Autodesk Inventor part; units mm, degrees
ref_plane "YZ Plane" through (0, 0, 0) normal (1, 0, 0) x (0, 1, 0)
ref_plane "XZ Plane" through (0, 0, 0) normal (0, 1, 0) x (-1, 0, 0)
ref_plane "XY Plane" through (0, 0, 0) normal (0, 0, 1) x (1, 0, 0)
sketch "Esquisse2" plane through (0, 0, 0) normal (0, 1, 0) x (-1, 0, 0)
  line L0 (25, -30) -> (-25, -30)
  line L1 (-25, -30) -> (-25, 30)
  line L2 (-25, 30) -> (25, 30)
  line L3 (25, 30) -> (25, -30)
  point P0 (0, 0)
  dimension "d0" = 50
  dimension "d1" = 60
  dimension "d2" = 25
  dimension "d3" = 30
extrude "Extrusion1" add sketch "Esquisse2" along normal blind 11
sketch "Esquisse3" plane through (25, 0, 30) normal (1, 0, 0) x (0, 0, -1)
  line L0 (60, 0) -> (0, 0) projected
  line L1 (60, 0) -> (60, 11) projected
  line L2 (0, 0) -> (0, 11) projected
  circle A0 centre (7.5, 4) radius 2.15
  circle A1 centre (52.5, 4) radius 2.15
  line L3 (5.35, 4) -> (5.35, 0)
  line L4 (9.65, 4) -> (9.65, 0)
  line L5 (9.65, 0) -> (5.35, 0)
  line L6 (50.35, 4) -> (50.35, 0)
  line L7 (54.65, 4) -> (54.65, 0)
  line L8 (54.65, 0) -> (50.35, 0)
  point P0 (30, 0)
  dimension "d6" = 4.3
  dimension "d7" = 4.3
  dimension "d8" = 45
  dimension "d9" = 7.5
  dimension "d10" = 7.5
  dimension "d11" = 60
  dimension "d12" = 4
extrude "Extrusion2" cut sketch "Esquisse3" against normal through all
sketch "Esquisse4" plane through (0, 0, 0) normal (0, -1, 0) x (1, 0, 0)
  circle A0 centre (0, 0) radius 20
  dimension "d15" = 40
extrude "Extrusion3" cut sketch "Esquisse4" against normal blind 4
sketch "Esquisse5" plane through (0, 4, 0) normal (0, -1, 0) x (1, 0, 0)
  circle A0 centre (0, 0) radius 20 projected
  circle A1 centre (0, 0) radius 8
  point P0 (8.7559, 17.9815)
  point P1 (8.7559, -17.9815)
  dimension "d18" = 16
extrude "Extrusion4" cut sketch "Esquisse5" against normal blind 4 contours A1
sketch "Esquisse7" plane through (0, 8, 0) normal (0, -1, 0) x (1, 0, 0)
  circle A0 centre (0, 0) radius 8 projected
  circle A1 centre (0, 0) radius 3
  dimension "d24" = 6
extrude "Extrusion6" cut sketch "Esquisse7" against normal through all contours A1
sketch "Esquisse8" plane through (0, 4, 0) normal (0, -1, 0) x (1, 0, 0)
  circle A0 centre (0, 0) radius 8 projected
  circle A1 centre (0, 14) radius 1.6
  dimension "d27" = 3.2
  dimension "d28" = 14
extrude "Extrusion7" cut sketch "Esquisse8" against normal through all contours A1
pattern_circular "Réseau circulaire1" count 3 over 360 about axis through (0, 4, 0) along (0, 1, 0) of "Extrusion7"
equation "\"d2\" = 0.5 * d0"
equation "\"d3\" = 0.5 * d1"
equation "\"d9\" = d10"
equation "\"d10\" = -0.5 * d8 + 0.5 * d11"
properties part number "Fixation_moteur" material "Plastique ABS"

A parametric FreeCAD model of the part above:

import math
import FreeCAD as App
import Part
import Sketcher
Q = App.Units.Quantity

doc = App.newDocument("Part")
body = doc.addObject("PartDesign::Body", "Body")

# Sketch on XZ plane
sketch1 = body.newObject("Sketcher::SketchObject", "Sketch")
sketch1.AttachmentSupport = (doc.getObject("XZ_Plane"), [""])
sketch1.MapMode = "FlatFace"
sketch1.addGeometry([
    Part.LineSegment(App.Vector(25, -30, 0), App.Vector(-25, -30, 0)),
    Part.LineSegment(App.Vector(-25, -30, 0), App.Vector(-25, 30, 0)),
    Part.LineSegment(App.Vector(-25, 30, 0), App.Vector(25, 30, 0)),
    Part.LineSegment(App.Vector(25, 30, 0), App.Vector(25, -30, 0)),
], False)
sketch1.addConstraint([
    Sketcher.Constraint("Coincident", 0, 2, 1, 1),
    Sketcher.Constraint("Coincident", 1, 2, 2, 1),
    Sketcher.Constraint("Coincident", 2, 2, 3, 1),
    Sketcher.Constraint("Coincident", 3, 2, 0, 1),
    Sketcher.Constraint("Horizontal", 0),
    Sketcher.Constraint("Vertical", 1),
    Sketcher.Constraint("Horizontal", 2),
    Sketcher.Constraint("Vertical", 3),
    Sketcher.Constraint("Symmetric", 0, 2, 2, 2, -1, 1),
    Sketcher.Constraint("DistanceX", 0, 2, 0, 1, Q("50 mm")),
    Sketcher.Constraint("DistanceY", 1, 1, 1, 2, Q("60 mm")),
])
pad1 = body.newObject("PartDesign::Pad", "Pad")
pad1.Profile = sketch1
pad1.Length = 11
pad1.Reversed = True

# Sketch on YZ plane
sketch2 = body.newObject("Sketcher::SketchObject", "Sketch001")
sketch2.AttachmentSupport = (doc.getObject("YZ_Plane"), [""])
sketch2.MapMode = "FlatFace"
sketch2.AttachmentOffset = App.Placement(App.Vector(0, 0, 25), App.Rotation())
sketch2.addGeometry([
    Part.LineSegment(App.Vector(0, 24.6, 0), App.Vector(0, 20.4, 0)),  # 0
    Part.LineSegment(App.Vector(0, 20.4, 0), App.Vector(4, 20.4, 0)),  # 1
    Part.ArcOfCircle(Part.Circle(App.Vector(4, 22.5, 0), App.Vector(0, 0, 1), 2.1), math.radians(-90), math.radians(90)),  # 2
    Part.LineSegment(App.Vector(4, 24.6, 0), App.Vector(0, 24.6, 0)),  # 3
    Part.LineSegment(App.Vector(0, -20.4, 0), App.Vector(0, -24.6, 0)),  # 4
    Part.LineSegment(App.Vector(0, -24.6, 0), App.Vector(4, -24.6, 0)),  # 5
    Part.ArcOfCircle(Part.Circle(App.Vector(4, -22.5, 0), App.Vector(0, 0, 1), 2.1), math.radians(-90), math.radians(90)),  # 6
    Part.LineSegment(App.Vector(4, -20.4, 0), App.Vector(0, -20.4, 0)),  # 7
], False)
sketch2.addConstraint([
    Sketcher.Constraint("Coincident", 0, 2, 1, 1),
    Sketcher.Constraint("Tangent", 1, 2, 2, 1),
    Sketcher.Constraint("Tangent", 2, 2, 3, 1),
    Sketcher.Constraint("Coincident", 3, 2, 0, 1),
    Sketcher.Constraint("Coincident", 4, 2, 5, 1),
    Sketcher.Constraint("Tangent", 5, 2, 6, 1),
    Sketcher.Constraint("Tangent", 6, 2, 7, 1),
    Sketcher.Constraint("Coincident", 7, 2, 4, 1),
    Sketcher.Constraint("Vertical", 0),
    Sketcher.Constraint("Horizontal", 1),
    Sketcher.Constraint("Horizontal", 3),
    Sketcher.Constraint("Vertical", 4),
    Sketcher.Constraint("Horizontal", 5),
    Sketcher.Constraint("Horizontal", 7),
    Sketcher.Constraint("Equal", 2, 6),
    Sketcher.Constraint("Symmetric", 3, 2, 4, 2, -1, 1),
    Sketcher.Constraint("PointOnObject", 0, 2, -2),
    Sketcher.Constraint("Vertical", 2, 3, 6, 3),
    Sketcher.Constraint("DistanceX", 1, 1, 1, 2, Q("4 mm")),
    Sketcher.Constraint("Radius", 2, Q("2.15 mm")),
    Sketcher.Constraint("DistanceY", 6, 3, 2, 3, Q("45 mm")),
])
pocket1 = body.newObject("PartDesign::Pocket", "Pocket")
pocket1.Profile = sketch2
pocket1.Type = "ThroughAll"

# Sketch on XZ plane
sketch3 = body.newObject("Sketcher::SketchObject", "Sketch002")
sketch3.AttachmentSupport = (doc.getObject("XZ_Plane"), [""])
sketch3.MapMode = "FlatFace"
sketch3.addGeometry(Part.Circle(App.Vector(0, 0, 0), App.Vector(0, 0, 1), 20), False)
sketch3.addConstraint([
    Sketcher.Constraint("Coincident", 0, 3, -1, 1),
    Sketcher.Constraint("Diameter", 0, Q("40 mm")),
])
pocket2 = body.newObject("PartDesign::Pocket", "Pocket001")
pocket2.Profile = sketch3
pocket2.Length = 4

# Sketch on XZ plane
sketch4 = body.newObject("Sketcher::SketchObject", "Sketch003")
sketch4.AttachmentSupport = (doc.getObject("XZ_Plane"), [""])
sketch4.MapMode = "FlatFace"
sketch4.AttachmentOffset = App.Placement(App.Vector(0, 0, -4), App.Rotation())
sketch4.addGeometry(Part.Circle(App.Vector(0, 0, 0), App.Vector(0, 0, 1), 8), False)
sketch4.addConstraint([
    Sketcher.Constraint("Coincident", 0, 3, -1, 1),
    Sketcher.Constraint("Diameter", 0, Q("16 mm")),
])
pocket3 = body.newObject("PartDesign::Pocket", "Pocket002")
pocket3.Profile = sketch4
pocket3.Length = 4

# Sketch on XZ plane
sketch5 = body.newObject("Sketcher::SketchObject", "Sketch004")
sketch5.AttachmentSupport = (doc.getObject("XZ_Plane"), [""])
sketch5.MapMode = "FlatFace"
sketch5.AttachmentOffset = App.Placement(App.Vector(0, 0, -8), App.Rotation())
sketch5.addGeometry(Part.Circle(App.Vector(0, 0, 0), App.Vector(0, 0, 1), 3), False)
sketch5.addConstraint([
    Sketcher.Constraint("Coincident", 0, 3, -1, 1),
    Sketcher.Constraint("Diameter", 0, Q("6 mm")),
])
pocket4 = body.newObject("PartDesign::Pocket", "Pocket003")
pocket4.Profile = sketch5
pocket4.Type = "ThroughAll"

# Sketch on XZ plane
sketch6 = body.newObject("Sketcher::SketchObject", "Sketch005")
sketch6.AttachmentSupport = (doc.getObject("XZ_Plane"), [""])
sketch6.MapMode = "FlatFace"
sketch6.AttachmentOffset = App.Placement(App.Vector(0, 0, -4), App.Rotation())
sketch6.addGeometry(Part.Circle(App.Vector(0, 14, 0), App.Vector(0, 0, 1), 1.6), False)
sketch6.addConstraint([
    Sketcher.Constraint("PointOnObject", 0, 3, -2),
    Sketcher.Constraint("Diameter", 0, Q("3.2 mm")),
    Sketcher.Constraint("DistanceY", -1, 1, 0, 3, Q("14 mm")),
])
pocket5 = body.newObject("PartDesign::Pocket", "Pocket004")
pocket5.Profile = sketch6
pocket5.Type = "ThroughAll"
doc.recompute()

polarpattern = body.newObject("PartDesign::PolarPattern", "PolarPattern")
polarpattern.Originals = [pocket5]
polarpattern.Axis = (doc.getObject("Y_Axis"), [""])
polarpattern.Angle = 360
polarpattern.Occurrences = 3
body.Tip = polarpattern

doc.recompute()
